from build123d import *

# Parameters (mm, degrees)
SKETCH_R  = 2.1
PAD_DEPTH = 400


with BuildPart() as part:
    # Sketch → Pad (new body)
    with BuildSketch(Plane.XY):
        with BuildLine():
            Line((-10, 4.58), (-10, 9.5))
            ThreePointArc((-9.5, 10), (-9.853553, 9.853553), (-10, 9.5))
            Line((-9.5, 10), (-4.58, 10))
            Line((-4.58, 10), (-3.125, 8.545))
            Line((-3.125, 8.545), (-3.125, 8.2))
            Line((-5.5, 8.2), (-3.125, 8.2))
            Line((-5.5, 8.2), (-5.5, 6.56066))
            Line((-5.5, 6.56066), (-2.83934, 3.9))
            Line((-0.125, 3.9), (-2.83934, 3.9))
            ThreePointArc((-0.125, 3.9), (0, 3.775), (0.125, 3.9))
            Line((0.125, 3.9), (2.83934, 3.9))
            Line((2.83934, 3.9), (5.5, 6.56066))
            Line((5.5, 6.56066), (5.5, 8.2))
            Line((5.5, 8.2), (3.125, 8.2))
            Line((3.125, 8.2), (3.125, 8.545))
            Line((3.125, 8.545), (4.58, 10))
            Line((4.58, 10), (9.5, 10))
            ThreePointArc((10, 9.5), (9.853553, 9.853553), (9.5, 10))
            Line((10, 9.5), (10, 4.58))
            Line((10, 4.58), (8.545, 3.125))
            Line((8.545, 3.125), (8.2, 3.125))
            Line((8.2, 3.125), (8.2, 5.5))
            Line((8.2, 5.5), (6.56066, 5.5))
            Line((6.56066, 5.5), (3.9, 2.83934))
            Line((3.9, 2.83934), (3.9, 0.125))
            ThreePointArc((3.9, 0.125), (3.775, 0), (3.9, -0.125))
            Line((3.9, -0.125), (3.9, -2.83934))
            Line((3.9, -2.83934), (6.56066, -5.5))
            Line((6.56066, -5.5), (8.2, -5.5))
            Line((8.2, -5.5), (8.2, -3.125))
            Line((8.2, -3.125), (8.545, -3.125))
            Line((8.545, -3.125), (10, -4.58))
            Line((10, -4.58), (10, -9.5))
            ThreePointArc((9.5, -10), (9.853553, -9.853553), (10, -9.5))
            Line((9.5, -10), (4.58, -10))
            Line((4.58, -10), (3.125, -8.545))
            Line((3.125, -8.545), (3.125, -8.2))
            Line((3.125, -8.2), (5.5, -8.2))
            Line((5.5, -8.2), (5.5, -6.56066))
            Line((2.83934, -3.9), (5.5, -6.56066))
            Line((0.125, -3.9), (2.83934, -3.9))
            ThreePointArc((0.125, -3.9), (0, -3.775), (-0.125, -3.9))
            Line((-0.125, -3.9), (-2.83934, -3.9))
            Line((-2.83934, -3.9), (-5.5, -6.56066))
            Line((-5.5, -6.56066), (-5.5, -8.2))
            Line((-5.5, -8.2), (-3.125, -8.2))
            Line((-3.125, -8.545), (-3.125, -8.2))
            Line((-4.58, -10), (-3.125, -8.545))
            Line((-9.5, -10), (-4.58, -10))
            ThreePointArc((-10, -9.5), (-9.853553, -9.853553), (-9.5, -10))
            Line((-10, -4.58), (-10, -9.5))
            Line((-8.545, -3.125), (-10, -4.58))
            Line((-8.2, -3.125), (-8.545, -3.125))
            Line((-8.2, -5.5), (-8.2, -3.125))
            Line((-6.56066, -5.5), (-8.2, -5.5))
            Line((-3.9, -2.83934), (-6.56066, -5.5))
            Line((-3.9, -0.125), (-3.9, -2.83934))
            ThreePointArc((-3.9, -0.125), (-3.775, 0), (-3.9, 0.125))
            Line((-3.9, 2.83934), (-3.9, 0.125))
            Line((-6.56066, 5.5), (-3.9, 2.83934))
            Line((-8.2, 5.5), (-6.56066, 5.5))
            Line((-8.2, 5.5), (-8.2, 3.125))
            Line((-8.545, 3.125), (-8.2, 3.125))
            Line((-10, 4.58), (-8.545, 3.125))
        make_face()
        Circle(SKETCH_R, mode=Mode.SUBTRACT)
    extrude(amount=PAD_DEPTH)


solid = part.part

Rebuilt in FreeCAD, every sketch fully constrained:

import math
import FreeCAD as App
import Part
import Sketcher

V = App.Vector

doc = App.newDocument("Part")
body = doc.addObject("PartDesign::Body", "Body")

# Sketch on XY plane
sketch1 = body.newObject("Sketcher::SketchObject", "Sketch")
sketch1.AttachmentSupport = (doc.getObject("XY_Plane"), [""])
sketch1.MapMode = "FlatFace"
sketch1.addGeometry([
    Part.LineSegment(V(-10, 9.5, 0), V(-10, 4.58, 0)),  # 0
    Part.LineSegment(V(-10, 4.58, 0), V(-8.545, 3.125, 0)),  # 1
    Part.LineSegment(V(-8.545, 3.125, 0), V(-8.2, 3.125, 0)),  # 2
    Part.LineSegment(V(-8.2, 3.125, 0), V(-8.2, 5.5, 0)),  # 3
    Part.LineSegment(V(-8.2, 5.5, 0), V(-6.56066, 5.5, 0)),  # 4
    Part.LineSegment(V(-6.56066, 5.5, 0), V(-3.9, 2.83934, 0)),  # 5
    Part.LineSegment(V(-3.9, 2.83934, 0), V(-3.9, 0.125, 0)),  # 6
    Part.ArcOfCircle(Part.Circle(V(-3.9, 0, 0), V(0, 0, 1), 0.125), math.radians(-90), math.radians(90)),  # 7
    Part.LineSegment(V(-3.9, -0.125, 0), V(-3.9, -2.83934, 0)),  # 8
    Part.LineSegment(V(-3.9, -2.83934, 0), V(-6.56066, -5.5, 0)),  # 9
    Part.LineSegment(V(-6.56066, -5.5, 0), V(-8.2, -5.5, 0)),  # 10
    Part.LineSegment(V(-8.2, -5.5, 0), V(-8.2, -3.125, 0)),  # 11
    Part.LineSegment(V(-8.2, -3.125, 0), V(-8.545, -3.125, 0)),  # 12
    Part.LineSegment(V(-8.545, -3.125, 0), V(-10, -4.58, 0)),  # 13
    Part.LineSegment(V(-10, -4.58, 0), V(-10, -9.5, 0)),  # 14
    Part.ArcOfCircle(Part.Circle(V(-9.499999, -9.499999, 0), V(0, 0, 1), 0.500001), math.radians(-179.999847), math.radians(-90.000153)),  # 15
    Part.LineSegment(V(-9.5, -10, 0), V(-4.58, -10, 0)),  # 16
    Part.LineSegment(V(-4.58, -10, 0), V(-3.125, -8.545, 0)),  # 17
    Part.LineSegment(V(-3.125, -8.545, 0), V(-3.125, -8.2, 0)),  # 18
    Part.LineSegment(V(-3.125, -8.2, 0), V(-5.5, -8.2, 0)),  # 19
    Part.LineSegment(V(-5.5, -8.2, 0), V(-5.5, -6.56066, 0)),  # 20
    Part.LineSegment(V(-5.5, -6.56066, 0), V(-2.83934, -3.9, 0)),  # 21
    Part.LineSegment(V(-2.83934, -3.9, 0), V(-0.125, -3.9, 0)),  # 22
    Part.ArcOfCircle(Part.Circle(V(0, -3.9, 0), V(0, 0, 1), 0.125), math.radians(0), math.radians(180)),  # 23
    Part.LineSegment(V(0.125, -3.9, 0), V(2.83934, -3.9, 0)),  # 24
    Part.LineSegment(V(2.83934, -3.9, 0), V(5.5, -6.56066, 0)),  # 25
    Part.LineSegment(V(5.5, -6.56066, 0), V(5.5, -8.2, 0)),  # 26
    Part.LineSegment(V(5.5, -8.2, 0), V(3.125, -8.2, 0)),  # 27
    Part.LineSegment(V(3.125, -8.2, 0), V(3.125, -8.545, 0)),  # 28
    Part.LineSegment(V(3.125, -8.545, 0), V(4.58, -10, 0)),  # 29
    Part.LineSegment(V(4.58, -10, 0), V(9.5, -10, 0)),  # 30
    Part.ArcOfCircle(Part.Circle(V(9.499999, -9.499999, 0), V(0, 0, 1), 0.500001), math.radians(-89.999847), math.radians(-0.000153)),  # 31
    Part.LineSegment(V(10, -9.5, 0), V(10, -4.58, 0)),  # 32
    Part.LineSegment(V(10, -4.58, 0), V(8.545, -3.125, 0)),  # 33
    Part.LineSegment(V(8.545, -3.125, 0), V(8.2, -3.125, 0)),  # 34
    Part.LineSegment(V(8.2, -3.125, 0), V(8.2, -5.5, 0)),  # 35
    Part.LineSegment(V(8.2, -5.5, 0), V(6.56066, -5.5, 0)),  # 36
    Part.LineSegment(V(6.56066, -5.5, 0), V(3.9, -2.83934, 0)),  # 37
    Part.LineSegment(V(3.9, -2.83934, 0), V(3.9, -0.125, 0)),  # 38
    Part.ArcOfCircle(Part.Circle(V(3.9, 0, 0), V(0, 0, 1), 0.125), math.radians(90), math.radians(270)),  # 39
    Part.LineSegment(V(3.9, 0.125, 0), V(3.9, 2.83934, 0)),  # 40
    Part.LineSegment(V(3.9, 2.83934, 0), V(6.56066, 5.5, 0)),  # 41
    Part.LineSegment(V(6.56066, 5.5, 0), V(8.2, 5.5, 0)),  # 42
    Part.LineSegment(V(8.2, 5.5, 0), V(8.2, 3.125, 0)),  # 43
    Part.LineSegment(V(8.2, 3.125, 0), V(8.545, 3.125, 0)),  # 44
    Part.LineSegment(V(8.545, 3.125, 0), V(10, 4.58, 0)),  # 45
    Part.LineSegment(V(10, 4.58, 0), V(10, 9.5, 0)),  # 46
    Part.ArcOfCircle(Part.Circle(V(9.499999, 9.499999, 0), V(0, 0, 1), 0.500001), math.radians(0.000153), math.radians(89.999847)),  # 47
    Part.LineSegment(V(9.5, 10, 0), V(4.58, 10, 0)),  # 48
    Part.LineSegment(V(4.58, 10, 0), V(3.125, 8.545, 0)),  # 49
    Part.LineSegment(V(3.125, 8.545, 0), V(3.125, 8.2, 0)),  # 50
    Part.LineSegment(V(3.125, 8.2, 0), V(5.5, 8.2, 0)),  # 51
    Part.LineSegment(V(5.5, 8.2, 0), V(5.5, 6.56066, 0)),  # 52
    Part.LineSegment(V(5.5, 6.56066, 0), V(2.83934, 3.9, 0)),  # 53
    Part.LineSegment(V(2.83934, 3.9, 0), V(0.125, 3.9, 0)),  # 54
    Part.ArcOfCircle(Part.Circle(V(0, 3.9, 0), V(0, 0, 1), 0.125), math.radians(180), math.radians(360)),  # 55
    Part.LineSegment(V(-0.125, 3.9, 0), V(-2.83934, 3.9, 0)),  # 56
    Part.LineSegment(V(-2.83934, 3.9, 0), V(-5.5, 6.56066, 0)),  # 57
    Part.LineSegment(V(-5.5, 6.56066, 0), V(-5.5, 8.2, 0)),  # 58
    Part.LineSegment(V(-5.5, 8.2, 0), V(-3.125, 8.2, 0)),  # 59
    Part.LineSegment(V(-3.125, 8.2, 0), V(-3.125, 8.545, 0)),  # 60
    Part.LineSegment(V(-3.125, 8.545, 0), V(-4.58, 10, 0)),  # 61
    Part.LineSegment(V(-4.58, 10, 0), V(-9.5, 10, 0)),  # 62
    Part.ArcOfCircle(Part.Circle(V(-9.499999, 9.499999, 0), V(0, 0, 1), 0.500001), math.radians(90.000153), math.radians(179.999847)),  # 63
    Part.Circle(V(0, 0, 0), V(0, 0, 1), 2.1),  # 64
], False)
sketch1.addConstraint([
    Sketcher.Constraint("Coincident", 0, 2, 1, 1),
    Sketcher.Constraint("Coincident", 1, 2, 2, 1),
    Sketcher.Constraint("Coincident", 2, 2, 3, 1),
    Sketcher.Constraint("Coincident", 3, 2, 4, 1),
    Sketcher.Constraint("Coincident", 4, 2, 5, 1),
    Sketcher.Constraint("Coincident", 5, 2, 6, 1),
    Sketcher.Constraint("Coincident", 6, 2, 7, 2),
    Sketcher.Constraint("Coincident", 7, 1, 8, 1),
    Sketcher.Constraint("Coincident", 8, 2, 9, 1),
    Sketcher.Constraint("Coincident", 9, 2, 10, 1),
    Sketcher.Constraint("Coincident", 10, 2, 11, 1),
    Sketcher.Constraint("Coincident", 11, 2, 12, 1),
    Sketcher.Constraint("Coincident", 12, 2, 13, 1),
    Sketcher.Constraint("Coincident", 13, 2, 14, 1),
    Sketcher.Constraint("Coincident", 14, 2, 15, 1),
    Sketcher.Constraint("Coincident", 15, 2, 16, 1),
    Sketcher.Constraint("Coincident", 16, 2, 17, 1),
    Sketcher.Constraint("Coincident", 17, 2, 18, 1),
    Sketcher.Constraint("Coincident", 18, 2, 19, 1),
    Sketcher.Constraint("Coincident", 19, 2, 20, 1),
    Sketcher.Constraint("Coincident", 20, 2, 21, 1),
    Sketcher.Constraint("Coincident", 21, 2, 22, 1),
    Sketcher.Constraint("Coincident", 22, 2, 23, 2),
    Sketcher.Constraint("Coincident", 23, 1, 24, 1),
    Sketcher.Constraint("Coincident", 24, 2, 25, 1),
    Sketcher.Constraint("Coincident", 25, 2, 26, 1),
    Sketcher.Constraint("Coincident", 26, 2, 27, 1),
    Sketcher.Constraint("Coincident", 27, 2, 28, 1),
    Sketcher.Constraint("Coincident", 28, 2, 29, 1),
    Sketcher.Constraint("Coincident", 29, 2, 30, 1),
    Sketcher.Constraint("Coincident", 30, 2, 31, 1),
    Sketcher.Constraint("Coincident", 31, 2, 32, 1),
    Sketcher.Constraint("Coincident", 32, 2, 33, 1),
    Sketcher.Constraint("Coincident", 33, 2, 34, 1),
    Sketcher.Constraint("Coincident", 34, 2, 35, 1),
    Sketcher.Constraint("Coincident", 35, 2, 36, 1),
    Sketcher.Constraint("Coincident", 36, 2, 37, 1),
    Sketcher.Constraint("Coincident", 37, 2, 38, 1),
    Sketcher.Constraint("Coincident", 38, 2, 39, 2),
    Sketcher.Constraint("Coincident", 39, 1, 40, 1),
    Sketcher.Constraint("Coincident", 40, 2, 41, 1),
    Sketcher.Constraint("Coincident", 41, 2, 42, 1),
    Sketcher.Constraint("Coincident", 42, 2, 43, 1),
    Sketcher.Constraint("Coincident", 43, 2, 44, 1),
    Sketcher.Constraint("Coincident", 44, 2, 45, 1),
    Sketcher.Constraint("Coincident", 45, 2, 46, 1),
    Sketcher.Constraint("Coincident", 46, 2, 47, 1),
    Sketcher.Constraint("Coincident", 47, 2, 48, 1),
    Sketcher.Constraint("Coincident", 48, 2, 49, 1),
    Sketcher.Constraint("Coincident", 49, 2, 50, 1),
    Sketcher.Constraint("Coincident", 50, 2, 51, 1),
    Sketcher.Constraint("Coincident", 51, 2, 52, 1),
    Sketcher.Constraint("Coincident", 52, 2, 53, 1),
    Sketcher.Constraint("Coincident", 53, 2, 54, 1),
    Sketcher.Constraint("Coincident", 54, 2, 55, 2),
    Sketcher.Constraint("Coincident", 55, 1, 56, 1),
    Sketcher.Constraint("Coincident", 56, 2, 57, 1),
    Sketcher.Constraint("Coincident", 57, 2, 58, 1),
    Sketcher.Constraint("Coincident", 58, 2, 59, 1),
    Sketcher.Constraint("Coincident", 59, 2, 60, 1),
    Sketcher.Constraint("Coincident", 60, 2, 61, 1),
    Sketcher.Constraint("Coincident", 61, 2, 62, 1),
    Sketcher.Constraint("Coincident", 62, 2, 63, 1),
    Sketcher.Constraint("Coincident", 63, 2, 0, 1),
    Sketcher.Constraint("Vertical", 0),
    Sketcher.Constraint("Horizontal", 2),
    Sketcher.Constraint("Vertical", 3),
    Sketcher.Constraint("Horizontal", 4),
    Sketcher.Constraint("Vertical", 6),
    Sketcher.Constraint("Vertical", 8),
    Sketcher.Constraint("Horizontal", 10),
    Sketcher.Constraint("Vertical", 11),
    Sketcher.Constraint("Horizontal", 12),
    Sketcher.Constraint("Vertical", 14),
    Sketcher.Constraint("Horizontal", 16),
    Sketcher.Constraint("Vertical", 18),
    Sketcher.Constraint("Horizontal", 19),
    Sketcher.Constraint("Vertical", 20),
    Sketcher.Constraint("Horizontal", 22),
    Sketcher.Constraint("Horizontal", 24),
    Sketcher.Constraint("Vertical", 26),
    Sketcher.Constraint("Horizontal", 27),
    Sketcher.Constraint("Vertical", 28),
    Sketcher.Constraint("Horizontal", 30),
    Sketcher.Constraint("Vertical", 32),
    Sketcher.Constraint("Horizontal", 34),
    Sketcher.Constraint("Vertical", 35),
    Sketcher.Constraint("Horizontal", 36),
    Sketcher.Constraint("Vertical", 38),
    Sketcher.Constraint("Vertical", 40),
    Sketcher.Constraint("Horizontal", 42),
    Sketcher.Constraint("Vertical", 43),
    Sketcher.Constraint("Horizontal", 44),
    Sketcher.Constraint("Vertical", 46),
    Sketcher.Constraint("Horizontal", 48),
    Sketcher.Constraint("Vertical", 50),
    Sketcher.Constraint("Horizontal", 51),
    Sketcher.Constraint("Vertical", 52),
    Sketcher.Constraint("Horizontal", 54),
    Sketcher.Constraint("Horizontal", 56),
    Sketcher.Constraint("Vertical", 58),
    Sketcher.Constraint("Horizontal", 59),
    Sketcher.Constraint("Vertical", 60),
    Sketcher.Constraint("Horizontal", 62),
    Sketcher.Constraint("Coincident", 64, 3, -1, 1),
    Sketcher.Constraint("Equal", 7, 23),
    Sketcher.Constraint("Equal", 15, 31),
    Sketcher.Constraint("Equal", 23, 39),
    Sketcher.Constraint("Equal", 31, 47),
    Sketcher.Constraint("Equal", 39, 55),
    Sketcher.Constraint("Equal", 47, 63),
    Sketcher.Constraint("Symmetric", 7, 3, 39, 3, -1, 1),
    Sketcher.Constraint("Symmetric", 15, 3, 47, 3, -1, 1),
    Sketcher.Constraint("Symmetric", 23, 3, 55, 3, -1, 1),
    Sketcher.Constraint("Symmetric", 31, 3, 63, 3, -1, 1),
    Sketcher.Constraint("Symmetric", 1, 2, 33, 2, -1, 1),
    Sketcher.Constraint("Symmetric", 3, 2, 35, 2, -1, 1),
    Sketcher.Constraint("Symmetric", 5, 2, 37, 2, -1, 1),
    Sketcher.Constraint("Symmetric", 8, 2, 40, 2, -1, 1),
    Sketcher.Constraint("Symmetric", 9, 2, 41, 2, -1, 1),
    Sketcher.Constraint("Symmetric", 11, 2, 43, 2, -1, 1),
    Sketcher.Constraint("Symmetric", 17, 2, 49, 2, -1, 1),
    Sketcher.Constraint("Symmetric", 19, 2, 51, 2, -1, 1),
    Sketcher.Constraint("Symmetric", 21, 2, 53, 2, -1, 1),
    Sketcher.Constraint("Symmetric", 24, 2, 56, 2, -1, 1),
    Sketcher.Constraint("Symmetric", 25, 2, 57, 2, -1, 1),
    Sketcher.Constraint("Symmetric", 27, 2, 59, 2, -1, 1),
    Sketcher.Constraint("Symmetric", 15, 3, 31, 3, -2),
    Sketcher.Constraint("Symmetric", 22, 2, 23, 1, -2),
    Sketcher.Constraint("Symmetric", 20, 2, 25, 2, -2),
    Sketcher.Constraint("Symmetric", 18, 2, 27, 2, -2),
    Sketcher.Constraint("Symmetric", 12, 2, 33, 2, -2),
    Sketcher.Constraint("Symmetric", 10, 2, 35, 2, -2),
    Sketcher.Constraint("Symmetric", 8, 2, 37, 2, -2),
    Sketcher.Constraint("PointOnObject", 7, 3, -1),
    Sketcher.Constraint("Parallel", 1, 5),
    Sketcher.Constraint("Perpendicular", 5, 9),
    Sketcher.Constraint("Parallel", 9, 13),
    Sketcher.Constraint("Parallel", 13, 17),
    Sketcher.Constraint("Parallel", 17, 21),
    Sketcher.Constraint("Perpendicular", 21, 25),
    Sketcher.Constraint("Parallel", 25, 29),
    Sketcher.Constraint("Parallel", 29, 33),
    Sketcher.Constraint("Parallel", 33, 37),
    Sketcher.Constraint("Parallel", 41, 45),
    Sketcher.Constraint("Parallel", 45, 49),
    Sketcher.Constraint("Parallel", 49, 53),
    Sketcher.Constraint("Parallel", 57, 61),
    Sketcher.Constraint("Horizontal", 31, 3, 14, 2),
    Sketcher.Constraint("Horizontal", 23, 3, 21, 2),
    Sketcher.Constraint("Horizontal", 17, 2, 28, 2),
    Sketcher.Constraint("Horizontal", 14, 2, 31, 2),
    Sketcher.Constraint("Horizontal", 13, 2, 32, 2),
    Sketcher.Constraint("Horizontal", 0, 2, 45, 2),
    Sketcher.Constraint("Horizontal", 63, 3, 46, 2),
    Sketcher.Constraint("Horizontal", 49, 2, 60, 2),
    Sketcher.Constraint("Horizontal", 46, 2, 63, 2),
    Sketcher.Constraint("Vertical", 7, 3, 5, 2),
    Sketcher.Constraint("Vertical", 63, 3, 15, 2),
    Sketcher.Constraint("Vertical", 47, 3, 30, 2),
    Sketcher.Constraint("Vertical", 30, 2, 47, 2),
    Sketcher.Constraint("Vertical", 15, 2, 62, 2),
    Sketcher.Constraint("Equal", 62, 0),
    Sketcher.Constraint("Equal", 59, 3),
    Sketcher.Constraint("Equal", 56, 6),
    Sketcher.Constraint("Equal", 44, 18),
    Sketcher.Constraint("Equal", 42, 20),
    Sketcher.Constraint("Equal", 13, 17),
    Sketcher.Constraint("Equal", 9, 21),
    Sketcher.Constraint("Diameter", 64, 4.2),
    Sketcher.Constraint("Radius", 15, 0.500001),
    Sketcher.Constraint("DistanceX", 0, 2, -1, 1, 10.0),
    Sketcher.Constraint("Radius", 7, 0.125),
    Sketcher.Constraint("DistanceX", 16, 1, 16, 2, 4.92),
    Sketcher.Constraint("DistanceX", 7, 3, -1, 1, 3.9),
    Sketcher.Constraint("DistanceX", 2, 2, -1, 1, 8.2),
    Sketcher.Constraint("DistanceY", -1, 1, 3, 2, 5.5),
    Sketcher.Constraint("DistanceX", 2, 1, 2, 2, 0.345),
    Sketcher.Constraint("DistanceX", 4, 1, 4, 2, 1.63934),
])
pad1 = body.newObject("PartDesign::Pad", "Pad")
pad1.Profile = sketch1
pad1.Length = 400

doc.recompute()
